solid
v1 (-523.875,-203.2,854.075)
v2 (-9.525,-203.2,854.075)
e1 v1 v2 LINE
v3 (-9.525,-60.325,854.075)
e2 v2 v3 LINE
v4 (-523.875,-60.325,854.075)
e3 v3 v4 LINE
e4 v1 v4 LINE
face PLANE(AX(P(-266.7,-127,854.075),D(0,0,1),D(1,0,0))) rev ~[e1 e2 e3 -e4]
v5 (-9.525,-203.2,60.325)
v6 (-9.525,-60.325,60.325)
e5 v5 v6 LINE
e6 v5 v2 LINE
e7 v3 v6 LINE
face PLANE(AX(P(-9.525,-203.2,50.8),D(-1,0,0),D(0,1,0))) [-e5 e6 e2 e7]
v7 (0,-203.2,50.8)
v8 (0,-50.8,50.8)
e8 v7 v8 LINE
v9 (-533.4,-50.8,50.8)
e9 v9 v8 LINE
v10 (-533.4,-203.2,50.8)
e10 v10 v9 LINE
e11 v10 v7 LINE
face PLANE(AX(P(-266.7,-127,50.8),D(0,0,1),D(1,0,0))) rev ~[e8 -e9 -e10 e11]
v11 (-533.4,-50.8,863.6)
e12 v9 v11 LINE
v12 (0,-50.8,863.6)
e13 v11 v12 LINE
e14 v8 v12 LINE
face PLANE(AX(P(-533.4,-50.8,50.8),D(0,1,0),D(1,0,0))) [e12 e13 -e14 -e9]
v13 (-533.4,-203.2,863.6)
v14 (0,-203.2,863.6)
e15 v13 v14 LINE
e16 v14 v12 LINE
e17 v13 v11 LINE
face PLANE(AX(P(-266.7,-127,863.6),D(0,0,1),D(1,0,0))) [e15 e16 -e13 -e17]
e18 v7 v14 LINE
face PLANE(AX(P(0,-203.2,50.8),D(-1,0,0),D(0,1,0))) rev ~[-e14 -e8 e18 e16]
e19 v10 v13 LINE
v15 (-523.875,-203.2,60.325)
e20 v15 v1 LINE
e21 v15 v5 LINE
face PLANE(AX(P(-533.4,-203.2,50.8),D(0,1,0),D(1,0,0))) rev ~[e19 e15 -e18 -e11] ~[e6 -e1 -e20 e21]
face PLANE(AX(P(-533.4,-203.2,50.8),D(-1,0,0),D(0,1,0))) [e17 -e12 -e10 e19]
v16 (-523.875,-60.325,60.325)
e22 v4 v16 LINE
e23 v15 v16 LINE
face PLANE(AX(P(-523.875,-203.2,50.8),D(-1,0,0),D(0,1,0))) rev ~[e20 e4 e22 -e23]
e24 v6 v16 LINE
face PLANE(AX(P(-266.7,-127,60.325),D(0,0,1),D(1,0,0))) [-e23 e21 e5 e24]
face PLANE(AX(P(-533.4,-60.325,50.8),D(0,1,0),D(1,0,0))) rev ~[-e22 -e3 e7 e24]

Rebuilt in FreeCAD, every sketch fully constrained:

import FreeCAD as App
import Part
import Sketcher

V = App.Vector
Q = App.Units.Quantity


def faces_at(feature, points):
    """Names of the faces that lie closest to the given points."""
    faces = feature.Shape.Faces
    near = lambda p: min(range(len(faces)), key=lambda i: faces[i].distToShape(Part.Vertex(*p))[0])
    return sorted({f"Face{near(p) + 1}" for p in points})

doc = App.newDocument("Part")
body = doc.addObject("PartDesign::Body", "Body")

# Sketch on XY plane
sketch1 = doc.addObject("Sketcher::SketchObject", "Sketch")
body.addObject(sketch1)
sketch1.AttachmentSupport = (doc.XY_Plane, [""])
sketch1.MapMode = "FlatFace"
sketch1.AttachmentOffset = App.Placement(V(0, 0, 2 * 25.4), App.Rotation())
sketch1.addGeometry(Part.LineSegment(V(-533, -51, 0), V(-533, -203, 0)), False)
sketch1.addGeometry(Part.LineSegment(V(-533, -203, 0), V(0, -203, 0)), False)
sketch1.addGeometry(Part.LineSegment(V(0, -203, 0), V(0, -51, 0)), False)
sketch1.addGeometry(Part.LineSegment(V(0, -51, 0), V(-533, -51, 0)), False)
sketch1.addConstraint(Sketcher.Constraint("Coincident", 0, 2, 1, 1))
sketch1.addConstraint(Sketcher.Constraint("Coincident", 1, 2, 2, 1))
sketch1.addConstraint(Sketcher.Constraint("Coincident", 2, 2, 3, 1))
sketch1.addConstraint(Sketcher.Constraint("Coincident", 3, 2, 0, 1))
sketch1.addConstraint(Sketcher.Constraint("Vertical", 0))
sketch1.addConstraint(Sketcher.Constraint("Horizontal", 1))
sketch1.addConstraint(Sketcher.Constraint("Vertical", 2))
sketch1.addConstraint(Sketcher.Constraint("Horizontal", 3))
sketch1.addConstraint(Sketcher.Constraint("PointOnObject", 1, 2, -2))
sketch1.addConstraint(Sketcher.Constraint("DistanceX", 1, 1, 1, 2, Q("21 in")))
sketch1.addConstraint(Sketcher.Constraint("DistanceY", 0, 2, 0, 1, Q("6 in")))
sketch1.addConstraint(Sketcher.Constraint("DistanceY", 0, 2, -1, 1, Q("8 in")))
pad1 = doc.addObject("PartDesign::Pad", "Pad")
body.addObject(pad1)
pad1.Profile = sketch1
pad1.Length = Q("32 in")
doc.recompute()

thickness = doc.addObject("PartDesign::Thickness", "Thickness")
body.addObject(thickness)
thickness.Base = (pad1, faces_at(pad1, [(-266.7, -203.2, 457.2)]))
thickness.Value = Q("0.375 in")
thickness.Reversed = True
thickness.Join = "Arc"

doc.recompute()
